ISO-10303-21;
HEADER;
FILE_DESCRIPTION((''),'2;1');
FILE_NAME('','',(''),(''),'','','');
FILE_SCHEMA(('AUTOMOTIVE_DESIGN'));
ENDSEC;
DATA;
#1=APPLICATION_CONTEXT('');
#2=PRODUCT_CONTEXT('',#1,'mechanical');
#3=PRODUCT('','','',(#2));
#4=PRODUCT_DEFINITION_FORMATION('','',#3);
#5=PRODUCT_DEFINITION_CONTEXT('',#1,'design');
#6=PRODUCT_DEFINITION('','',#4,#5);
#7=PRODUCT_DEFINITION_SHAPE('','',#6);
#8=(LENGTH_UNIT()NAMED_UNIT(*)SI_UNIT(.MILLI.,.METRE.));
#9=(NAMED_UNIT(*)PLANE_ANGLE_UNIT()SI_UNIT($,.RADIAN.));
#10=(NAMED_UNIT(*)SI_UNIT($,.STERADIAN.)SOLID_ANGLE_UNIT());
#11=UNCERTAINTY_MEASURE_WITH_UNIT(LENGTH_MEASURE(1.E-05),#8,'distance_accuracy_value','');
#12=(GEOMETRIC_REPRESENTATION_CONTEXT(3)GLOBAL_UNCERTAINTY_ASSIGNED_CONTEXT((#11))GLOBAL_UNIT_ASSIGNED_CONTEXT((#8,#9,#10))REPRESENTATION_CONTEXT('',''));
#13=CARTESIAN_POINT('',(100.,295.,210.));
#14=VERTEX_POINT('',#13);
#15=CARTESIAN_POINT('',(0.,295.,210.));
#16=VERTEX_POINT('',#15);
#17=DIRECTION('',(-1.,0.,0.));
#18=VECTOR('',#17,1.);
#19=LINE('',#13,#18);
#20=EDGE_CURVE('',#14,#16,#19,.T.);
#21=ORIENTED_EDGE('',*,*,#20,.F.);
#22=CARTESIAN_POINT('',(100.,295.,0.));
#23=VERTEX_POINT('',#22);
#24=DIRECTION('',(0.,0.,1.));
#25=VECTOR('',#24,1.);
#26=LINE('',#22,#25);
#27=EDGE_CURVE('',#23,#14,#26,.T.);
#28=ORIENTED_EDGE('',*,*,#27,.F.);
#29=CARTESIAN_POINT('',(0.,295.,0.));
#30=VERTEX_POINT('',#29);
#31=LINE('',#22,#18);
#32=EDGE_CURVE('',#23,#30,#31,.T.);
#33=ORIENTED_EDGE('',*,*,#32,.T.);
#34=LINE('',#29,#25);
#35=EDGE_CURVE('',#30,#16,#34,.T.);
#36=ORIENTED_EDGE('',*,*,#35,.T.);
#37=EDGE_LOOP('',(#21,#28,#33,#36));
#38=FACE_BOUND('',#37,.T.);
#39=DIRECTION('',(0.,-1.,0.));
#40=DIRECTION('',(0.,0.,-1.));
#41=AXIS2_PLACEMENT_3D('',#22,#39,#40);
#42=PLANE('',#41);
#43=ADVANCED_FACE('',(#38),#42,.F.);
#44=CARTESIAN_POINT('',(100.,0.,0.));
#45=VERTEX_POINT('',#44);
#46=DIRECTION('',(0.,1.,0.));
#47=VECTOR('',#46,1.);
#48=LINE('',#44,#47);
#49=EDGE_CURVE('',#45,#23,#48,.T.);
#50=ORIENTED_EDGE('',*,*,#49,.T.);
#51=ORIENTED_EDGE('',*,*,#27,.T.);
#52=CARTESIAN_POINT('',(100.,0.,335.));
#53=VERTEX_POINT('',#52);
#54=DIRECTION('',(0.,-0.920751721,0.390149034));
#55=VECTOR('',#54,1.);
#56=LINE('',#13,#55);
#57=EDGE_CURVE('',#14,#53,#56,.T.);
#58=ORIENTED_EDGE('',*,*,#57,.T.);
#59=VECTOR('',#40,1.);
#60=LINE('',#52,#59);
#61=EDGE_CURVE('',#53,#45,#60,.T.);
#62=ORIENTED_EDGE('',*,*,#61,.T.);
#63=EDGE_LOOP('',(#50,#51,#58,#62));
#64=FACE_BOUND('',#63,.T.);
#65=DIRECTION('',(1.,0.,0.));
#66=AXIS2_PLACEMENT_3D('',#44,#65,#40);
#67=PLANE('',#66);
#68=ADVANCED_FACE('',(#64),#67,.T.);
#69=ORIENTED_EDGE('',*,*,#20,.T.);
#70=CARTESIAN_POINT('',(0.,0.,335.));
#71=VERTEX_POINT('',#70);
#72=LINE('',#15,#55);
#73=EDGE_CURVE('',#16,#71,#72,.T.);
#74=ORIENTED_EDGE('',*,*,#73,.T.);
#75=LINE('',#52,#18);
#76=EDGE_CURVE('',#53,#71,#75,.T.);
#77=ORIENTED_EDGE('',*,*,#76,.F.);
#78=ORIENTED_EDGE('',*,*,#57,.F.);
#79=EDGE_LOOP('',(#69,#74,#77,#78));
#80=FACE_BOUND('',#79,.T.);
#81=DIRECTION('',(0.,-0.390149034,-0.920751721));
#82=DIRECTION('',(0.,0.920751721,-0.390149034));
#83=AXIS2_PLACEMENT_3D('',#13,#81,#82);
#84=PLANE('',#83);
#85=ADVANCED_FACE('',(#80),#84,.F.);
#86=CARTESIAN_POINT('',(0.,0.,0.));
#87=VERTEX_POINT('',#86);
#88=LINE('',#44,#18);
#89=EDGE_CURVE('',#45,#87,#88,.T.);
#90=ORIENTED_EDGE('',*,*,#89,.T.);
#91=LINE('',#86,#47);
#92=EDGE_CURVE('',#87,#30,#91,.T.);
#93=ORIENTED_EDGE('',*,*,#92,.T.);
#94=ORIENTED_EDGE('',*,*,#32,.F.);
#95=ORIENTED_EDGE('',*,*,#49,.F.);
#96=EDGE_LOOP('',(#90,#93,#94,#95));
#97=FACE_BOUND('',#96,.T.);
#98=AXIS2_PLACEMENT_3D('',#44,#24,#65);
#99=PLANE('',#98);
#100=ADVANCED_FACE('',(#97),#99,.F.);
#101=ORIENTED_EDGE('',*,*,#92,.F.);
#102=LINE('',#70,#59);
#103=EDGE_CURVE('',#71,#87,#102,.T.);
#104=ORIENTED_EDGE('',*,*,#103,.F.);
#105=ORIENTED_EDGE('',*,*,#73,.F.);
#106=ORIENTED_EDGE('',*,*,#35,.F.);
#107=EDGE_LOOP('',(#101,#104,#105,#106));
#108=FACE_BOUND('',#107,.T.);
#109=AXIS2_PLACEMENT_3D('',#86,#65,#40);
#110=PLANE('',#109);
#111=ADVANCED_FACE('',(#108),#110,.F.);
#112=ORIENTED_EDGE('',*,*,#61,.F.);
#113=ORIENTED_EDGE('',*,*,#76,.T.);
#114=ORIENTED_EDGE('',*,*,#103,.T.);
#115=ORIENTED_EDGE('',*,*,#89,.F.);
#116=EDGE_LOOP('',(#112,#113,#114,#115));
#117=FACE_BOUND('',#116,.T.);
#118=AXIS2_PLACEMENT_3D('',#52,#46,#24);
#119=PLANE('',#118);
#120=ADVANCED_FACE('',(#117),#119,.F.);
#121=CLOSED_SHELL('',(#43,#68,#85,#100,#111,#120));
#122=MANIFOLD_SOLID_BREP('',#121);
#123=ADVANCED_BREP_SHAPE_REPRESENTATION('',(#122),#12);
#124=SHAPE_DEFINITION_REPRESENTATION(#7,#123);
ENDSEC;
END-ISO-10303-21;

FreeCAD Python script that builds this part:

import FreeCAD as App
import Part
import Sketcher
from FreeCAD import Vector

doc = App.newDocument("Part")
body = doc.addObject("PartDesign::Body", "Body")

sketch1 = body.newObject("Sketcher::SketchObject", "Sketch")
sketch1.AttachmentSupport = (doc.getObject("YZ_Plane"), [""])
sketch1.MapMode = "FlatFace"
sketch1.addGeometry(Part.LineSegment(Vector(0, 0, 0), Vector(295, 0, 0)), False)
sketch1.addGeometry(Part.LineSegment(Vector(295, 0, 0), Vector(295, 210, 0)), False)
sketch1.addGeometry(Part.LineSegment(Vector(295, 210, 0), Vector(0, 335, 0)), False)
sketch1.addGeometry(Part.LineSegment(Vector(0, 335, 0), Vector(0, 0, 0)), False)
sketch1.addConstraint(Sketcher.Constraint("Coincident", 0, 2, 1, 1))
sketch1.addConstraint(Sketcher.Constraint("Coincident", 1, 2, 2, 1))
sketch1.addConstraint(Sketcher.Constraint("Coincident", 2, 2, 3, 1))
sketch1.addConstraint(Sketcher.Constraint("Coincident", 3, 2, 0, 1))
sketch1.addConstraint(Sketcher.Constraint("Horizontal", 0))
sketch1.addConstraint(Sketcher.Constraint("Vertical", 1))
sketch1.addConstraint(Sketcher.Constraint("Vertical", 3))
sketch1.addConstraint(Sketcher.Constraint("Coincident", 3, 2, -1, 1))
sketch1.addConstraint(Sketcher.Constraint("DistanceX", 0, 1, 0, 2, 295.0))
sketch1.addConstraint(Sketcher.Constraint("DistanceY", 1, 1, 1, 2, 210.0))
sketch1.addConstraint(Sketcher.Constraint("DistanceY", 3, 2, 3, 1, 335.0))
pad1 = body.newObject("PartDesign::Pad", "Pad")
pad1.Profile = sketch1
pad1.Length = 100

doc.recompute()
